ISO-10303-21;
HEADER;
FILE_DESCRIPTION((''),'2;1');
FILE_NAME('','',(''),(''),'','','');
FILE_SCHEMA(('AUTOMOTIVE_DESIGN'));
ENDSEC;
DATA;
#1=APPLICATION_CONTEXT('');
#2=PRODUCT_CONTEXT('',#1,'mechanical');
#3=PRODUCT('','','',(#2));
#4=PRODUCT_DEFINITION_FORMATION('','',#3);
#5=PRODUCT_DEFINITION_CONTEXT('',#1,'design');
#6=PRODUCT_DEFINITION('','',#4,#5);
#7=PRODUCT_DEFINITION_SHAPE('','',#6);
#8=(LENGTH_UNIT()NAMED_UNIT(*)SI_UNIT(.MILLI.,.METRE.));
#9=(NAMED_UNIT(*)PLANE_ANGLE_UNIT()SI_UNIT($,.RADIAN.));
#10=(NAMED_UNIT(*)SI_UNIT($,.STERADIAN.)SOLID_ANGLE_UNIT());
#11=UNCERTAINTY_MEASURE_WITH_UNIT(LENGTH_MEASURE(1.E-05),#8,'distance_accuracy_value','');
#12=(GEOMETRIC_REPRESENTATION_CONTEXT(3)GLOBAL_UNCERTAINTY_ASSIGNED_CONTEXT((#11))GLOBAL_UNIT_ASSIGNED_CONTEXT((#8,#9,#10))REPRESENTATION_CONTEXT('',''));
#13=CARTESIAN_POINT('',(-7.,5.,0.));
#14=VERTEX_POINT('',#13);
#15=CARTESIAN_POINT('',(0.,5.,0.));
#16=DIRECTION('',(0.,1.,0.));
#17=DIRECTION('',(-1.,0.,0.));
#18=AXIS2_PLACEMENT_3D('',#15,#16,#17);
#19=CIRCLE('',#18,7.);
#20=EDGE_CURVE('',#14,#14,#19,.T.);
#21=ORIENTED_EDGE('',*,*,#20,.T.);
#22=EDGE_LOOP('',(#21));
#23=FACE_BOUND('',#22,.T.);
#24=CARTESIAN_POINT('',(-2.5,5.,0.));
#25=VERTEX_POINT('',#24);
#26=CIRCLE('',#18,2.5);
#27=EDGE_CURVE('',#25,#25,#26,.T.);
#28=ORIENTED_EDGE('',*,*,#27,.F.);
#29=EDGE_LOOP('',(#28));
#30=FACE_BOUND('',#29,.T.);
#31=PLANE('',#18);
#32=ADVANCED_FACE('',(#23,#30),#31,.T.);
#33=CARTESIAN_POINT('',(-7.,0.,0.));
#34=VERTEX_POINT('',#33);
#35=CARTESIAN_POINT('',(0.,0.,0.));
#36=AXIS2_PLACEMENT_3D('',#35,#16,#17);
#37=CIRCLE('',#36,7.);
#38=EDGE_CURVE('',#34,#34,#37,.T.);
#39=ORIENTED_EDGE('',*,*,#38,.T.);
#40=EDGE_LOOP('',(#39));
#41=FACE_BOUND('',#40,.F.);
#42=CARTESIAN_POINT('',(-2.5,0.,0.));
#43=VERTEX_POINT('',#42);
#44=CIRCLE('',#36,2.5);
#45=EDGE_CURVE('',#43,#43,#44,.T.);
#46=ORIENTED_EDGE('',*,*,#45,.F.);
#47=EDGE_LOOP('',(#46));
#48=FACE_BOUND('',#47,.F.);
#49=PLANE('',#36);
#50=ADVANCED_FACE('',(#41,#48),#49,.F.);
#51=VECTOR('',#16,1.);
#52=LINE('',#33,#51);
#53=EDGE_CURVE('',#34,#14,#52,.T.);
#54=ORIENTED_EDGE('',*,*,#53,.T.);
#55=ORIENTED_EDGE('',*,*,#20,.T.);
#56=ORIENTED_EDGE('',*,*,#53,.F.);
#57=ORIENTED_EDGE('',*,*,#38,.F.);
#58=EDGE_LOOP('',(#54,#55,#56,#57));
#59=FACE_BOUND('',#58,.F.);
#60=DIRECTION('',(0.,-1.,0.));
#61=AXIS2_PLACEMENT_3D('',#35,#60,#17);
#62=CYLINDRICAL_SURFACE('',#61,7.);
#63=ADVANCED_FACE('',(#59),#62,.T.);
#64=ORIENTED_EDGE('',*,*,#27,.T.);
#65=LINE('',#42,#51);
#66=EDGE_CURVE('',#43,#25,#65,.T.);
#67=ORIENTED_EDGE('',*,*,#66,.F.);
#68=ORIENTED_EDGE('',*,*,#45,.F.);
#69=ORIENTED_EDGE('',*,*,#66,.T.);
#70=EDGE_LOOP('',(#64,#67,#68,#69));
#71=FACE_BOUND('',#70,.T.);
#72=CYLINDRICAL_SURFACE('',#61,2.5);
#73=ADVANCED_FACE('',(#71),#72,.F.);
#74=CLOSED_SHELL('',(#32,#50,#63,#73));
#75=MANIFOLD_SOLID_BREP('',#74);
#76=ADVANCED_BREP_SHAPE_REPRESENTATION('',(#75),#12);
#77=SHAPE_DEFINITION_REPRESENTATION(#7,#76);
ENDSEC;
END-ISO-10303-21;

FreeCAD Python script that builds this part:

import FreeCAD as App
import Part
import Sketcher

V = App.Vector

doc = App.newDocument("Part")
params = doc.addObject("Spreadsheet::Sheet", "Params")
for row, (alias, value) in enumerate([
    ("sketch1_diameter", "14 mm"),
    ("sketch1_diameter2", "5 mm"),
    ("pad1_length", "5 mm"),
], start=1):
    params.set(f"A{row}", alias)
    params.set(f"B{row}", "=" + value)
    params.setAlias(f"B{row}", alias)

body = doc.addObject("PartDesign::Body", "Body")

# Sketch on XZ plane
sketch1 = body.newObject("Sketcher::SketchObject", "Sketch")
sketch1.AttachmentSupport = (doc.getObject("XZ_Plane"), [""])
sketch1.MapMode = "FlatFace"
sketch1.addGeometry(Part.Circle(V(0, 0, 0), V(0, 0, 1), 7), False)
sketch1.addGeometry(Part.Circle(V(0, 0, 0), V(0, 0, 1), 2.5), False)
sketch1.addConstraint(Sketcher.Constraint("Coincident", 0, 3, -1, 1))
sketch1.addConstraint(Sketcher.Constraint("Coincident", 1, 3, -1, 1))
sketch1.addConstraint(Sketcher.Constraint("Diameter", 0, 14.0))
sketch1.addConstraint(Sketcher.Constraint("Diameter", 1, 5.0))
sketch1.setExpression("Constraints[2]", "Params.sketch1_diameter")
sketch1.setExpression("Constraints[3]", "Params.sketch1_diameter2")
pad1 = body.newObject("PartDesign::Pad", "Pad")
pad1.Profile = sketch1
pad1.setExpression("Length", "Params.pad1_length")
pad1.Reversed = True

doc.recompute()
